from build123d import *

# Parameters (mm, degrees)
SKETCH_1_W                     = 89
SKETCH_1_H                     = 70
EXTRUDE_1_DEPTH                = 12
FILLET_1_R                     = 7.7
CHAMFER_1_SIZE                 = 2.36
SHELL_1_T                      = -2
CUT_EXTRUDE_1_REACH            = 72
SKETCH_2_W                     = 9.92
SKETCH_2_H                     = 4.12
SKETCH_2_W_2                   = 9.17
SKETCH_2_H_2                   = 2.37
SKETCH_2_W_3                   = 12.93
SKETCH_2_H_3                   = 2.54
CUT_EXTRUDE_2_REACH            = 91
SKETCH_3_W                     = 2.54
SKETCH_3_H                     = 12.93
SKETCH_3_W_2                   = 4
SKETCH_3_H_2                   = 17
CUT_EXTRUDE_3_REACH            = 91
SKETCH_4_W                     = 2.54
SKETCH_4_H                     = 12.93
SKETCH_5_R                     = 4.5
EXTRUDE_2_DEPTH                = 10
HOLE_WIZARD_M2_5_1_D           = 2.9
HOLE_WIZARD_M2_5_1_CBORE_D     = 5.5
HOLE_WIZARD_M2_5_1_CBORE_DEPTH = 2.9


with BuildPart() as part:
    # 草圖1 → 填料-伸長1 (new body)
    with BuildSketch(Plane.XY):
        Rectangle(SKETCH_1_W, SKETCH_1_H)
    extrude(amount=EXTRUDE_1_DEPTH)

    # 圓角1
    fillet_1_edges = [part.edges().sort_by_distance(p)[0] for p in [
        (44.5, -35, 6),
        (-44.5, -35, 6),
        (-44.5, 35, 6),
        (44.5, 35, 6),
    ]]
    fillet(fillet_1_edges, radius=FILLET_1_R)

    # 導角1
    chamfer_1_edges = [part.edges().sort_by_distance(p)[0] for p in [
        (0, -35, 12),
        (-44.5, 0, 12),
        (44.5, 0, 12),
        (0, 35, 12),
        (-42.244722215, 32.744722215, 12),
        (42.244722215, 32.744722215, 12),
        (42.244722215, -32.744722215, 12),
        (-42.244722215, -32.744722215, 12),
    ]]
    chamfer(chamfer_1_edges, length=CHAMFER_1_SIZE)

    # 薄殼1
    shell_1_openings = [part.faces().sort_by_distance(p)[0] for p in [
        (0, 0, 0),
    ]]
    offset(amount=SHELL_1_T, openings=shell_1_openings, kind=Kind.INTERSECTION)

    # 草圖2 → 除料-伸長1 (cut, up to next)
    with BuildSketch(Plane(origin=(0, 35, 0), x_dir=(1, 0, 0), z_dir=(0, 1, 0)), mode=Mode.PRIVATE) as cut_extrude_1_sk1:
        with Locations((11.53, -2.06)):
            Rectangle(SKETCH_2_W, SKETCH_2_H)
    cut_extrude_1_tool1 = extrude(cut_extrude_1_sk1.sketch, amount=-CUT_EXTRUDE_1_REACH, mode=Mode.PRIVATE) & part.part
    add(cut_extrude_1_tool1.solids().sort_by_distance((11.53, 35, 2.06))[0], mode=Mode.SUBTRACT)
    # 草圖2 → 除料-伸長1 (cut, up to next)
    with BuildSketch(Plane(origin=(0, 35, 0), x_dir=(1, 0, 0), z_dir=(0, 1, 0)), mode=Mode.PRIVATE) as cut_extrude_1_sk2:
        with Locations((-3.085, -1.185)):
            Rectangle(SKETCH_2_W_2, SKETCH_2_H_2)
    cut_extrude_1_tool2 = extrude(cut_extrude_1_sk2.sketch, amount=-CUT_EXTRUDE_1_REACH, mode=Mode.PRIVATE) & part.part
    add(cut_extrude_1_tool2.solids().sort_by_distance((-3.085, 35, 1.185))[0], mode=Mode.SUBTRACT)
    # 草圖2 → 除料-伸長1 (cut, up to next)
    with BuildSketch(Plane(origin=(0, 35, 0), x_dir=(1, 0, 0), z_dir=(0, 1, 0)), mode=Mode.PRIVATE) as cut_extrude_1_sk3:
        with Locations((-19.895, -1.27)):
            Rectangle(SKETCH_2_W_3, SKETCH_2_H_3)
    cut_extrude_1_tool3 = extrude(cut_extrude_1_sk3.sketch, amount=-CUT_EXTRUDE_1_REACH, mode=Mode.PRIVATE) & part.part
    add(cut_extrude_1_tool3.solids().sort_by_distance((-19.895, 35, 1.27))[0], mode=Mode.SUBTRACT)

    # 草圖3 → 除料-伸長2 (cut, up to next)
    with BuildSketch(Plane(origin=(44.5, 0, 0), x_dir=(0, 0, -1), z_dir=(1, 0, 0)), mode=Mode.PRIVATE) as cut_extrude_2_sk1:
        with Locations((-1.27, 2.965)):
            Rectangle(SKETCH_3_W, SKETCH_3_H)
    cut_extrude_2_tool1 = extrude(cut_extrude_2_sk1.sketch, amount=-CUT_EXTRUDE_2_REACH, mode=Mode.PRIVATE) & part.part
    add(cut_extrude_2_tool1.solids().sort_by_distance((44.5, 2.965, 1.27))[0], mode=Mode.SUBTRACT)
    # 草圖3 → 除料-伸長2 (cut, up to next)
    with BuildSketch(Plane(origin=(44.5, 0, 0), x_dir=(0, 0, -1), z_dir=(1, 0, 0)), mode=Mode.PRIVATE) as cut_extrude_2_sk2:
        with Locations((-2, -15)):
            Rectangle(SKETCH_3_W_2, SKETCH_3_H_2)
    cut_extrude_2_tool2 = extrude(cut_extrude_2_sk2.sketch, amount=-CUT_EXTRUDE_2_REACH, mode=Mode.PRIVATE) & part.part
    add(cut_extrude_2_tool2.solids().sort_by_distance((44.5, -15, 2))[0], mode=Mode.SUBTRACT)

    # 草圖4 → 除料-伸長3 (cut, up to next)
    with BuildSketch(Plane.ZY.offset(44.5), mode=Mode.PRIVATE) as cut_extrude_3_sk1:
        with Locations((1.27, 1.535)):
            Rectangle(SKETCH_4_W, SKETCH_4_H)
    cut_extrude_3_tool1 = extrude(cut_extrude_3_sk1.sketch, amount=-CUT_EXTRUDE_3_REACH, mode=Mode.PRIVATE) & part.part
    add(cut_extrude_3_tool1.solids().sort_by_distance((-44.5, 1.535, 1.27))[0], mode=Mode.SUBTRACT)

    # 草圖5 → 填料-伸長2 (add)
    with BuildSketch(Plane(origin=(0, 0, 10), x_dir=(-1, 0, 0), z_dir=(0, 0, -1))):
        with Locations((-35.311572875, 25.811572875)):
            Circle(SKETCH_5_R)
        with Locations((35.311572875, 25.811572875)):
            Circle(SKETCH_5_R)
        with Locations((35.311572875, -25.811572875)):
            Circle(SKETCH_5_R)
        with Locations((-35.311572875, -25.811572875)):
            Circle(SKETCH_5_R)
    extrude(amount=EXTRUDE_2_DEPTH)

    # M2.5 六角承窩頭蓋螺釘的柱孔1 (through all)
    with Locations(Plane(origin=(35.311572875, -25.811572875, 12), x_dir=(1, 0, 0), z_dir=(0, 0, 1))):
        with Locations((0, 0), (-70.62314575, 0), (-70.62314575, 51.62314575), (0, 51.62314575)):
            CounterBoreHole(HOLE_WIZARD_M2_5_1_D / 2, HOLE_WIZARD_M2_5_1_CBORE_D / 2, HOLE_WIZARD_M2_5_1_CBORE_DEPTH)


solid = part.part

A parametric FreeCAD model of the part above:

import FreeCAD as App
import Part
import Sketcher

V = App.Vector


def edges_at(feature, points):
    """Names of the edges that pass closest to the given points."""
    edges = feature.Shape.Edges
    near = lambda p: min(range(len(edges)), key=lambda i: edges[i].distToShape(Part.Vertex(*p))[0])
    return sorted({f"Edge{near(p) + 1}" for p in points})


def faces_at(feature, points):
    """Names of the faces that lie closest to the given points."""
    faces = feature.Shape.Faces
    near = lambda p: min(range(len(faces)), key=lambda i: faces[i].distToShape(Part.Vertex(*p))[0])
    return sorted({f"Face{near(p) + 1}" for p in points})

doc = App.newDocument("Part")
body = doc.addObject("PartDesign::Body", "Body")

# Sketch on XY plane
sketch1 = body.newObject("Sketcher::SketchObject", "Sketch")
sketch1.AttachmentSupport = (doc.getObject("XY_Plane"), [""])
sketch1.MapMode = "FlatFace"
sketch1.addGeometry([
    Part.LineSegment(V(-44, 35, 0), V(-44, -35, 0)),
    Part.LineSegment(V(-44, -35, 0), V(44, -35, 0)),
    Part.LineSegment(V(44, -35, 0), V(44, 35, 0)),
    Part.LineSegment(V(44, 35, 0), V(-44, 35, 0)),
], False)
sketch1.addConstraint([
    Sketcher.Constraint("Coincident", 0, 2, 1, 1),
    Sketcher.Constraint("Coincident", 1, 2, 2, 1),
    Sketcher.Constraint("Coincident", 2, 2, 3, 1),
    Sketcher.Constraint("Coincident", 3, 2, 0, 1),
    Sketcher.Constraint("Vertical", 0),
    Sketcher.Constraint("Horizontal", 1),
    Sketcher.Constraint("Vertical", 2),
    Sketcher.Constraint("Horizontal", 3),
    Sketcher.Constraint("Symmetric", 0, 2, 2, 2, -1, 1),
    Sketcher.Constraint("DistanceX", 1, 1, 1, 2, 89.0),
    Sketcher.Constraint("DistanceY", 0, 2, 0, 1, 70.0),
])
pad1 = body.newObject("PartDesign::Pad", "Pad")
pad1.Profile = sketch1
pad1.Length = 12
doc.recompute()

fillet = body.newObject("PartDesign::Fillet", "Fillet")
fillet.Base = (pad1, edges_at(pad1, [
    (44.5, -35, 6),
    (-44.5, -35, 6),
    (-44.5, 35, 6),
    (44.5, 35, 6),
]))
fillet.Radius = 7.7
doc.recompute()

chamfer = body.newObject("PartDesign::Chamfer", "Chamfer")
chamfer.Base = (fillet, edges_at(fillet, [
    (0, -35, 12),
    (-44.5, 0, 12),
    (44.5, 0, 12),
    (0, 35, 12),
    (-42.245, 32.745, 12),
    (42.245, 32.745, 12),
    (42.245, -32.745, 12),
    (-42.245, -32.745, 12),
]))
chamfer.Size = 2.36
doc.recompute()

thickness = body.newObject("PartDesign::Thickness", "Thickness")
thickness.Base = (chamfer, faces_at(chamfer, [(0, 0, 0)]))
thickness.Value = 2
thickness.Reversed = True
thickness.Join = "Intersection"

# Sketch on XZ plane
sketch2 = body.newObject("Sketcher::SketchObject", "Sketch001")
sketch2.AttachmentSupport = (doc.getObject("XZ_Plane"), [""])
sketch2.MapMode = "FlatFace"
sketch2.AttachmentOffset = App.Placement(V(0, 0, -35), App.Rotation())
sketch2.addGeometry([
    Part.LineSegment(V(6.6, 0, 0), V(6.6, 4.1, 0)),
    Part.LineSegment(V(6.6, 4.1, 0), V(16.5, 4.1, 0)),
    Part.LineSegment(V(16.5, 4.1, 0), V(16.5, 0, 0)),
    Part.LineSegment(V(16.5, 0, 0), V(6.6, 0, 0)),
], False)
sketch2.addConstraint([
    Sketcher.Constraint("Coincident", 0, 2, 1, 1),
    Sketcher.Constraint("Coincident", 1, 2, 2, 1),
    Sketcher.Constraint("Coincident", 2, 2, 3, 1),
    Sketcher.Constraint("Coincident", 3, 2, 0, 1),
    Sketcher.Constraint("Vertical", 0),
    Sketcher.Constraint("Horizontal", 1),
    Sketcher.Constraint("Vertical", 2),
    Sketcher.Constraint("Horizontal", 3),
    Sketcher.Constraint("PointOnObject", 2, 2, -1),
    Sketcher.Constraint("DistanceX", 1, 1, 1, 2, 9.92),
    Sketcher.Constraint("DistanceY", 0, 1, 0, 2, 4.12),
    Sketcher.Constraint("DistanceX", -1, 1, 0, 2, 6.57),
])
pocket1 = body.newObject("PartDesign::Pocket", "Pocket")
pocket1.Profile = sketch2
pocket1.Type = "UpToFirst"
pocket1.Reversed = True

# Sketch on XZ plane
sketch3 = body.newObject("Sketcher::SketchObject", "Sketch002")
sketch3.AttachmentSupport = (doc.getObject("XZ_Plane"), [""])
sketch3.MapMode = "FlatFace"
sketch3.AttachmentOffset = App.Placement(V(0, 0, -35), App.Rotation())
sketch3.addGeometry([
    Part.LineSegment(V(-7.7, 0, 0), V(-7.7, 2.4, 0)),
    Part.LineSegment(V(-7.7, 2.4, 0), V(1.5, 2.4, 0)),
    Part.LineSegment(V(1.5, 2.4, 0), V(1.5, 0, 0)),
    Part.LineSegment(V(1.5, 0, 0), V(-7.7, 0, 0)),
], False)
sketch3.addConstraint([
    Sketcher.Constraint("Coincident", 0, 2, 1, 1),
    Sketcher.Constraint("Coincident", 1, 2, 2, 1),
    Sketcher.Constraint("Coincident", 2, 2, 3, 1),
    Sketcher.Constraint("Coincident", 3, 2, 0, 1),
    Sketcher.Constraint("Vertical", 0),
    Sketcher.Constraint("Horizontal", 1),
    Sketcher.Constraint("Vertical", 2),
    Sketcher.Constraint("Horizontal", 3),
    Sketcher.Constraint("PointOnObject", 2, 2, -1),
    Sketcher.Constraint("DistanceX", 1, 1, 1, 2, 9.17),
    Sketcher.Constraint("DistanceY", 0, 1, 0, 2, 2.37),
    Sketcher.Constraint("DistanceX", -1, 1, 1, 2, 1.5),
])
pocket2 = body.newObject("PartDesign::Pocket", "Pocket001")
pocket2.Profile = sketch3
pocket2.Type = "UpToFirst"
pocket2.Reversed = True

# Sketch on XZ plane
sketch4 = body.newObject("Sketcher::SketchObject", "Sketch003")
sketch4.AttachmentSupport = (doc.getObject("XZ_Plane"), [""])
sketch4.MapMode = "FlatFace"
sketch4.AttachmentOffset = App.Placement(V(0, 0, -35), App.Rotation())
sketch4.addGeometry([
    Part.LineSegment(V(-26.4, 0, 0), V(-26.4, 2.5, 0)),
    Part.LineSegment(V(-26.4, 2.5, 0), V(-13.4, 2.5, 0)),
    Part.LineSegment(V(-13.4, 2.5, 0), V(-13.4, 0, 0)),
    Part.LineSegment(V(-13.4, 0, 0), V(-26.4, 0, 0)),
], False)
sketch4.addConstraint([
    Sketcher.Constraint("Coincident", 0, 2, 1, 1),
    Sketcher.Constraint("Coincident", 1, 2, 2, 1),
    Sketcher.Constraint("Coincident", 2, 2, 3, 1),
    Sketcher.Constraint("Coincident", 3, 2, 0, 1),
    Sketcher.Constraint("Vertical", 0),
    Sketcher.Constraint("Horizontal", 1),
    Sketcher.Constraint("Vertical", 2),
    Sketcher.Constraint("Horizontal", 3),
    Sketcher.Constraint("PointOnObject", 2, 2, -1),
    Sketcher.Constraint("DistanceX", 1, 1, 1, 2, 12.93),
    Sketcher.Constraint("DistanceY", 0, 1, 0, 2, 2.54),
    Sketcher.Constraint("DistanceX", 0, 2, -1, 1, 26.36),
])
pocket3 = body.newObject("PartDesign::Pocket", "Pocket002")
pocket3.Profile = sketch4
pocket3.Type = "UpToFirst"
pocket3.Reversed = True

# Sketch on YZ plane
sketch5 = body.newObject("Sketcher::SketchObject", "Sketch004")
sketch5.AttachmentSupport = (doc.getObject("YZ_Plane"), [""])
sketch5.MapMode = "FlatFace"
sketch5.AttachmentOffset = App.Placement(V(0, 0, 44.5), App.Rotation())
sketch5.addGeometry([
    Part.LineSegment(V(9.4, 2.5, 0), V(-3.5, 2.5, 0)),
    Part.LineSegment(V(-3.5, 2.5, 0), V(-3.5, 0, 0)),
    Part.LineSegment(V(-3.5, 0, 0), V(9.4, 0, 0)),
    Part.LineSegment(V(9.4, 0, 0), V(9.4, 2.5, 0)),
], False)
sketch5.addConstraint([
    Sketcher.Constraint("Coincident", 0, 2, 1, 1),
    Sketcher.Constraint("Coincident", 1, 2, 2, 1),
    Sketcher.Constraint("Coincident", 2, 2, 3, 1),
    Sketcher.Constraint("Coincident", 3, 2, 0, 1),
    Sketcher.Constraint("Horizontal", 0),
    Sketcher.Constraint("Vertical", 1),
    Sketcher.Constraint("Horizontal", 2),
    Sketcher.Constraint("Vertical", 3),
    Sketcher.Constraint("PointOnObject", 1, 2, -1),
    Sketcher.Constraint("DistanceX", 0, 2, 0, 1, 12.93),
    Sketcher.Constraint("DistanceY", 1, 2, 1, 1, 2.54),
    Sketcher.Constraint("DistanceX", 0, 2, -1, 1, 3.5),
])
pocket4 = body.newObject("PartDesign::Pocket", "Pocket003")
pocket4.Profile = sketch5
pocket4.Type = "UpToFirst"

# Sketch on YZ plane
sketch6 = body.newObject("Sketcher::SketchObject", "Sketch005")
sketch6.AttachmentSupport = (doc.getObject("YZ_Plane"), [""])
sketch6.MapMode = "FlatFace"
sketch6.AttachmentOffset = App.Placement(V(0, 0, 44.5), App.Rotation())
sketch6.addGeometry([
    Part.LineSegment(V(-6.5, 4, 0), V(-23.5, 4, 0)),
    Part.LineSegment(V(-23.5, 4, 0), V(-23.5, 0, 0)),
    Part.LineSegment(V(-23.5, 0, 0), V(-6.5, 0, 0)),
    Part.LineSegment(V(-6.5, 0, 0), V(-6.5, 4, 0)),
], False)
sketch6.addConstraint([
    Sketcher.Constraint("Coincident", 0, 2, 1, 1),
    Sketcher.Constraint("Coincident", 1, 2, 2, 1),
    Sketcher.Constraint("Coincident", 2, 2, 3, 1),
    Sketcher.Constraint("Coincident", 3, 2, 0, 1),
    Sketcher.Constraint("Horizontal", 0),
    Sketcher.Constraint("Vertical", 1),
    Sketcher.Constraint("Horizontal", 2),
    Sketcher.Constraint("Vertical", 3),
    Sketcher.Constraint("PointOnObject", 1, 2, -1),
    Sketcher.Constraint("DistanceX", 0, 2, 0, 1, 17.0),
    Sketcher.Constraint("DistanceY", 1, 2, 1, 1, 4.0),
    Sketcher.Constraint("DistanceX", 0, 2, -1, 1, 23.5),
])
pocket5 = body.newObject("PartDesign::Pocket", "Pocket004")
pocket5.Profile = sketch6
pocket5.Type = "UpToFirst"

# Sketch on YZ plane
sketch7 = body.newObject("Sketcher::SketchObject", "Sketch006")
sketch7.AttachmentSupport = (doc.getObject("YZ_Plane"), [""])
sketch7.MapMode = "FlatFace"
sketch7.AttachmentOffset = App.Placement(V(0, 0, -44.5), App.Rotation())
sketch7.addGeometry([
    Part.LineSegment(V(8, 0, 0), V(-4.9, 0, 0)),
    Part.LineSegment(V(-4.9, 0, 0), V(-4.9, 2.5, 0)),
    Part.LineSegment(V(-4.9, 2.5, 0), V(8, 2.5, 0)),
    Part.LineSegment(V(8, 2.5, 0), V(8, 0, 0)),
], False)
sketch7.addConstraint([
    Sketcher.Constraint("Coincident", 0, 2, 1, 1),
    Sketcher.Constraint("Coincident", 1, 2, 2, 1),
    Sketcher.Constraint("Coincident", 2, 2, 3, 1),
    Sketcher.Constraint("Coincident", 3, 2, 0, 1),
    Sketcher.Constraint("Horizontal", 0),
    Sketcher.Constraint("Vertical", 1),
    Sketcher.Constraint("Horizontal", 2),
    Sketcher.Constraint("Vertical", 3),
    Sketcher.Constraint("PointOnObject", 0, 2, -1),
    Sketcher.Constraint("DistanceX", -1, 1, 2, 2, 8.0),
    Sketcher.Constraint("DistanceX", 0, 2, 0, 1, 12.93),
    Sketcher.Constraint("DistanceY", 1, 1, 1, 2, 2.54),
])
pocket6 = body.newObject("PartDesign::Pocket", "Pocket005")
pocket6.Profile = sketch7
pocket6.Type = "UpToFirst"
pocket6.Reversed = True

# Sketch on XY plane
sketch8 = body.newObject("Sketcher::SketchObject", "Sketch007")
sketch8.AttachmentSupport = (doc.getObject("XY_Plane"), [""])
sketch8.MapMode = "FlatFace"
sketch8.AttachmentOffset = App.Placement(V(0, 0, 10), App.Rotation())
sketch8.addGeometry([
    Part.Circle(V(35.3, 25.8, 0), V(0, 0, 1), 4.5),
    Part.Circle(V(-35.3, 25.8, 0), V(0, 0, 1), 4.5),
    Part.Circle(V(-35.3, -25.8, 0), V(0, 0, 1), 4.5),
    Part.Circle(V(35.3, -25.8, 0), V(0, 0, 1), 4.5),
], False)
sketch8.addConstraint([
    Sketcher.Constraint("Equal", 0, 1),
    Sketcher.Constraint("Equal", 1, 2),
    Sketcher.Constraint("Equal", 2, 3),
    Sketcher.Constraint("Symmetric", 0, 3, 2, 3, -1, 1),
    Sketcher.Constraint("Symmetric", 1, 3, 3, 3, -1, 1),
    Sketcher.Constraint("Symmetric", 0, 3, 1, 3, -2),
    Sketcher.Constraint("Diameter", 0, 9.0),
    Sketcher.Constraint("DistanceX", -1, 1, 0, 3, 35.311573),
    Sketcher.Constraint("DistanceY", -1, 1, 0, 3, 25.811573),
])
pad2 = body.newObject("PartDesign::Pad", "Pad001")
pad2.Profile = sketch8
pad2.Length = 10
pad2.Reversed = True

# Sketch on XY plane
sketch9 = body.newObject("Sketcher::SketchObject", "Sketch008")
sketch9.AttachmentSupport = (doc.getObject("XY_Plane"), [""])
sketch9.MapMode = "FlatFace"
sketch9.AttachmentOffset = App.Placement(V(0, 0, 12), App.Rotation())
sketch9.addGeometry([
    Part.Circle(V(35.3, -25.8, 0), V(0, 0, 1), 1.4),
    Part.Circle(V(-35.3, -25.8, 0), V(0, 0, 1), 1.4),
    Part.Circle(V(-35.3, 25.8, 0), V(0, 0, 1), 1.4),
    Part.Circle(V(35.3, 25.8, 0), V(0, 0, 1), 1.4),
], False)
sketch9.addConstraint([
    Sketcher.Constraint("Equal", 0, 1),
    Sketcher.Constraint("Equal", 1, 2),
    Sketcher.Constraint("Equal", 2, 3),
    Sketcher.Constraint("Symmetric", 0, 3, 2, 3, -1, 1),
    Sketcher.Constraint("Symmetric", 1, 3, 3, 3, -1, 1),
    Sketcher.Constraint("Symmetric", 0, 3, 1, 3, -2),
    Sketcher.Constraint("Diameter", 0, 2.9),
    Sketcher.Constraint("DistanceX", -1, 1, 0, 3, 35.311573),
    Sketcher.Constraint("DistanceY", 0, 3, -1, 1, 25.811573),
])
doc.recompute()
hole = body.newObject("PartDesign::Hole", "Hole")
hole.Profile = sketch9
hole.ThreadType = "None"
hole.Diameter = 2.9
hole.DepthType = "ThroughAll"
hole.HoleCutType = "Counterbore"
hole.HoleCutDiameter = 5.5
hole.HoleCutDepth = 2.9

doc.recompute()
